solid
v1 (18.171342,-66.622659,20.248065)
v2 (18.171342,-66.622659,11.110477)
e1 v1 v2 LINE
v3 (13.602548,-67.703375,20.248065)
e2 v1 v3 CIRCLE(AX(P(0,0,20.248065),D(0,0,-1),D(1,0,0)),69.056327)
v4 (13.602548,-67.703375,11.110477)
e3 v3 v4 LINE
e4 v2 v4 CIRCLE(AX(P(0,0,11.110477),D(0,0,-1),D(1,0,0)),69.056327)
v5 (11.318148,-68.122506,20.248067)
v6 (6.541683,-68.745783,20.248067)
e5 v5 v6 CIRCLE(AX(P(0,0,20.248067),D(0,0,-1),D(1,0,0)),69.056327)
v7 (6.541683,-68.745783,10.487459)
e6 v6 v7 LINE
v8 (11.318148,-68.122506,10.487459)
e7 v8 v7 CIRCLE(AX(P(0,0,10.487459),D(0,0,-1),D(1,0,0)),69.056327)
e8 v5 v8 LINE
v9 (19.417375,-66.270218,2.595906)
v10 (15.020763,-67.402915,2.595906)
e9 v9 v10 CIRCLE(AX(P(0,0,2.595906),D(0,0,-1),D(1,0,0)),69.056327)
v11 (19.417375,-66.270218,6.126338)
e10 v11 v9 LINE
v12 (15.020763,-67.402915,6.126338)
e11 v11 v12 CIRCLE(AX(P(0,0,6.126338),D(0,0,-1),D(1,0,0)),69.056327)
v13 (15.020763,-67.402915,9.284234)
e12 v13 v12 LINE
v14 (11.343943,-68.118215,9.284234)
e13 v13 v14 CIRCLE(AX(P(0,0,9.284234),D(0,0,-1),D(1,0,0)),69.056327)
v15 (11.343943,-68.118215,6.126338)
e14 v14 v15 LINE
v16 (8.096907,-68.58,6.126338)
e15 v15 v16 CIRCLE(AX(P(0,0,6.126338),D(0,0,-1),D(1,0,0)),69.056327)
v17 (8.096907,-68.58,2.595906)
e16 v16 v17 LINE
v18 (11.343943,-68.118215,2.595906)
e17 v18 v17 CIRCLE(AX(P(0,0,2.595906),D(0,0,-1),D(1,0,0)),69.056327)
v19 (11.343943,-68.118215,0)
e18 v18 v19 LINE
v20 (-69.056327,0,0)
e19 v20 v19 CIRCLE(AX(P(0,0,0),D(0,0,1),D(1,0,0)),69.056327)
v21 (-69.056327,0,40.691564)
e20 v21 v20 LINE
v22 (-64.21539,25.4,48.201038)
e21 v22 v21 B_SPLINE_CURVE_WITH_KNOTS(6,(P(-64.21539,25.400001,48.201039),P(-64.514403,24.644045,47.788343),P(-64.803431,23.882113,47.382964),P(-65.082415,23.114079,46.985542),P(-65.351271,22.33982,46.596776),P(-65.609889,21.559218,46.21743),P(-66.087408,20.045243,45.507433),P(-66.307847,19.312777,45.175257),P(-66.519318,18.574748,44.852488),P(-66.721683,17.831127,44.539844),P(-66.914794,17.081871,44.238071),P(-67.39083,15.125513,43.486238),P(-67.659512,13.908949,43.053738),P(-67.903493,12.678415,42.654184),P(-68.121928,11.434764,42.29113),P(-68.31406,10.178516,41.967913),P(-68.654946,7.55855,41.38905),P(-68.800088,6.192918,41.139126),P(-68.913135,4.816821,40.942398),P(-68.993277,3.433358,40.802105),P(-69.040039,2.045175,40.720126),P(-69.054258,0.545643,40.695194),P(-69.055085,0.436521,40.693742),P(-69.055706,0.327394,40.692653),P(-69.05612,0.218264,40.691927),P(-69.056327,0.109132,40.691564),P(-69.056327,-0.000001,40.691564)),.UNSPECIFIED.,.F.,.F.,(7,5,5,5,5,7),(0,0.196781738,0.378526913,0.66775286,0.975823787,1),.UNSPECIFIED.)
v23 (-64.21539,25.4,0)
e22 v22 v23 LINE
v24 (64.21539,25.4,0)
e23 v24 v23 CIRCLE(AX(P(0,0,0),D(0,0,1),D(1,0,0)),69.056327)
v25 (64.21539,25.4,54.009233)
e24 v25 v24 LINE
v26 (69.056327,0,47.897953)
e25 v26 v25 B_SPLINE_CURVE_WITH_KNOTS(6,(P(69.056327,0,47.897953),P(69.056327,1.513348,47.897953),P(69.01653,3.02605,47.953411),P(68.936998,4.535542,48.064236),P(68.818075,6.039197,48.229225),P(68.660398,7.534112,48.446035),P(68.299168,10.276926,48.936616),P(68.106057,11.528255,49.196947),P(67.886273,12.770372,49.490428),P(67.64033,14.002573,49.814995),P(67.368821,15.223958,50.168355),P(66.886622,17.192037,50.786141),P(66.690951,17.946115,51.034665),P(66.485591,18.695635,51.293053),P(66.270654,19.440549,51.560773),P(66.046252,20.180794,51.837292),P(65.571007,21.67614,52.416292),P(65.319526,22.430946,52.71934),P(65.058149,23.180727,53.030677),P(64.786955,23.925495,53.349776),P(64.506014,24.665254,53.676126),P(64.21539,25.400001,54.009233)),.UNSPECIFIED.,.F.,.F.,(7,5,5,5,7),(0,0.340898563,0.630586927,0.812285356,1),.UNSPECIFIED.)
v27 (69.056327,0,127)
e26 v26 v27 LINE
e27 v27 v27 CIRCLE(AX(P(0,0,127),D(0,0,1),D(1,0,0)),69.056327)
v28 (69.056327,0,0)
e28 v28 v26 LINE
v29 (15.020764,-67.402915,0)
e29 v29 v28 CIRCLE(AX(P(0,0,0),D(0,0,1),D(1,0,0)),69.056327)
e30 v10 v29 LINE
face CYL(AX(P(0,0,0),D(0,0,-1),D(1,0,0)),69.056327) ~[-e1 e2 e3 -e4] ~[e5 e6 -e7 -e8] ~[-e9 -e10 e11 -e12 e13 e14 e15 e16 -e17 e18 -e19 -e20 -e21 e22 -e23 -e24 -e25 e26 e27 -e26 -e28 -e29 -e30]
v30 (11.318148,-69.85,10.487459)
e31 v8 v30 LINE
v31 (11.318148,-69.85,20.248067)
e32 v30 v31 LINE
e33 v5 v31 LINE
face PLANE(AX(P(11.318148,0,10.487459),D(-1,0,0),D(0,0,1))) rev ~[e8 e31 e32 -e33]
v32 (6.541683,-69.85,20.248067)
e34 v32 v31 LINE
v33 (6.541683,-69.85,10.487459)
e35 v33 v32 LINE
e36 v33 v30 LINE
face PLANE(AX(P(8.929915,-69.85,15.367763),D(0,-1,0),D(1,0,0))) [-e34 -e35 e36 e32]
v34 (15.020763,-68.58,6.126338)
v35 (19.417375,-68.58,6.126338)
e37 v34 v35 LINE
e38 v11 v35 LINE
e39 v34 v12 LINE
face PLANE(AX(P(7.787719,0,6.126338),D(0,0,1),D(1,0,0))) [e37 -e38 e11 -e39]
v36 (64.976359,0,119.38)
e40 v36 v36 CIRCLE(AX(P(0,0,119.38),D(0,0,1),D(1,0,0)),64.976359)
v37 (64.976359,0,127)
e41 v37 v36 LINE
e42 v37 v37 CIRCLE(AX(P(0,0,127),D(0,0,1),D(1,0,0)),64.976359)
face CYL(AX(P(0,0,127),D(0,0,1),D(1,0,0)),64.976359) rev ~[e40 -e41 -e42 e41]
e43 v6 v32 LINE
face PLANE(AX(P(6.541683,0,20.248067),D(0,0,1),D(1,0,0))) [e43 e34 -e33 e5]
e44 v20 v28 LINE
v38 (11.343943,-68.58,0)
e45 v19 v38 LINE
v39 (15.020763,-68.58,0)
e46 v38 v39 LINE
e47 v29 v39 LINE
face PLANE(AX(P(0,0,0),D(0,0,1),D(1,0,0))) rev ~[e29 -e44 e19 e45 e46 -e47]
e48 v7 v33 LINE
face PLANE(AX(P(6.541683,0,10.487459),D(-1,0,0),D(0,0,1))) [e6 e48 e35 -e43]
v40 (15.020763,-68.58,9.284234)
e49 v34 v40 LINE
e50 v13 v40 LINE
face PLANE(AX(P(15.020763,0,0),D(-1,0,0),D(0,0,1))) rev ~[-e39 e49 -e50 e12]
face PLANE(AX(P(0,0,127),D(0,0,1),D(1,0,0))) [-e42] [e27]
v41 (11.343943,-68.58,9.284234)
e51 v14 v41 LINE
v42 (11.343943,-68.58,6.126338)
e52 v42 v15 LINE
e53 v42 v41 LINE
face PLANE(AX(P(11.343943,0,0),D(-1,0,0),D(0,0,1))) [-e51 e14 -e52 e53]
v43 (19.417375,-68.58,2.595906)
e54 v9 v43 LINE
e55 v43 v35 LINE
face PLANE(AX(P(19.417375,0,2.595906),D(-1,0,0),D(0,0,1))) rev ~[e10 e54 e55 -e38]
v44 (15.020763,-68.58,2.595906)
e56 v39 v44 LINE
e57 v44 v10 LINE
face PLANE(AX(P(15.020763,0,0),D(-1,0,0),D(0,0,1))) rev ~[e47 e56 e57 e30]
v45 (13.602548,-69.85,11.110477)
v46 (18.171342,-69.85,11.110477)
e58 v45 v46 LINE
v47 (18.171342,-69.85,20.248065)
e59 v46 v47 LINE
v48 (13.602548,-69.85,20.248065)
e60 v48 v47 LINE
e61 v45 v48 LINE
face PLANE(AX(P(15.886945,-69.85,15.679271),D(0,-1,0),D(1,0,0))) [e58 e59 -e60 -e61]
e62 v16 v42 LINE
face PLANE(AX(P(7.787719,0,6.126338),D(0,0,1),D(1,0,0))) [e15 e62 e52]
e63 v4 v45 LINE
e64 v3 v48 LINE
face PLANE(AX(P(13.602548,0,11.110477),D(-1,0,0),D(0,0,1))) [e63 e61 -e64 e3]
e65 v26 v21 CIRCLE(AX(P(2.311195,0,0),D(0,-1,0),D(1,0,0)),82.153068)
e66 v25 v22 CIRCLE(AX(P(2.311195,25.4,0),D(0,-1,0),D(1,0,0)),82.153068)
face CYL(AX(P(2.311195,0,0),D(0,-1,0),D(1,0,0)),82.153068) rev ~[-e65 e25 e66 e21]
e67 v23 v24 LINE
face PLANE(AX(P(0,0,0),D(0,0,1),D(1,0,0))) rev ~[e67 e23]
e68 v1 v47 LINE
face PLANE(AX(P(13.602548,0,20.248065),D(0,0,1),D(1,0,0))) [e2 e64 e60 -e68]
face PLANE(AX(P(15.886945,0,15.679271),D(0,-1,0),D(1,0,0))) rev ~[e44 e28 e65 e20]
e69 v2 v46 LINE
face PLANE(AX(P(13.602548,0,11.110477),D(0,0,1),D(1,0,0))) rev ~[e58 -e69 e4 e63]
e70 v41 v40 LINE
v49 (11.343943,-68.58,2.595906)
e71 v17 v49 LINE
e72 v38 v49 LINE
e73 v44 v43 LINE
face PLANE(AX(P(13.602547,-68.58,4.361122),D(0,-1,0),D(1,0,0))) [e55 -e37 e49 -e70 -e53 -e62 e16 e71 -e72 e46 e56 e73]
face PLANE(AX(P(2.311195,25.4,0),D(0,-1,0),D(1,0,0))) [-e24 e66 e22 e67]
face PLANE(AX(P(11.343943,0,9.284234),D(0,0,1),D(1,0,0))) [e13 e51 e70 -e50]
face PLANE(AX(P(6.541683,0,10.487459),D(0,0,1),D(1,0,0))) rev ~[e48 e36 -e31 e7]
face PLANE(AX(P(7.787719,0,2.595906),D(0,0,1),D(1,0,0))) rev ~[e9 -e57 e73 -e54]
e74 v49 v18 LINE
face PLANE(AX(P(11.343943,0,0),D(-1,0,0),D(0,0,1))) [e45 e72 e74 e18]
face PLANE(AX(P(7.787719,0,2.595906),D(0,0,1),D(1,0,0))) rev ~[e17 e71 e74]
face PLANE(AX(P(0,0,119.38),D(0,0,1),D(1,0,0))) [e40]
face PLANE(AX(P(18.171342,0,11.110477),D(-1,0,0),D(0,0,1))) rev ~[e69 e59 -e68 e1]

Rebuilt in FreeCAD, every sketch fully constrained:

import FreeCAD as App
import Part
import Sketcher
from FreeCAD import Vector


def add_polygon(sketch, points):
    """Adds a closed chain of lines whose ends are joined by coincident constraints."""
    first, n = sketch.GeometryCount, len(points)
    for a, b in zip(points, points[1:] + points[:1]):
        sketch.addGeometry(Part.LineSegment(App.Vector(*a, 0), App.Vector(*b, 0)), False)
    for i in range(n):
        sketch.addConstraint(Sketcher.Constraint("Coincident", first + i, 2, first + (i + 1) % n, 1))

doc = App.newDocument("Part")
params = doc.addObject("Spreadsheet::Sheet", "Params")
for row, (alias, value) in enumerate([
    ("pad1_length", "5 in"),
    ("pocket1_length", "1 in"),
    ("pocket2_length", "0.3 in"),
    ("pad2_length", "2.7 in"),
    ("pad3_length", "2.7 in"),
    ("pad4_length", "2.75 in"),
    ("pad5_length", "2.75 in"),
], start=1):
    params.set(f"A{row}", alias)
    params.set(f"B{row}", "=" + value)
    params.setAlias(f"B{row}", alias)

body = doc.addObject("PartDesign::Body", "Body")

sketch1 = body.newObject("Sketcher::SketchObject", "Sketch")
sketch1.AttachmentSupport = (doc.getObject("XY_Plane"), [""])
sketch1.MapMode = "FlatFace"
sketch1.addGeometry(Part.Circle(Vector(0, 0, 0), Vector(0, 0, 1), 69), False)
sketch1.addConstraint(Sketcher.Constraint("Coincident", 0, 3, -1, 1))
sketch1.addConstraint(Sketcher.Constraint("Diameter", 0, 138.112654))
pad1 = body.newObject("PartDesign::Pad", "Pad")
pad1.Profile = sketch1
pad1.setExpression("Length", "Params.pad1_length")

sketch2 = body.newObject("Sketcher::SketchObject", "Sketch001")
sketch2.AttachmentSupport = (doc.getObject("XZ_Plane"), [""])
sketch2.MapMode = "FlatFace"
sketch2.addGeometry(Part.Circle(Vector(2, 0, 0), Vector(0, 0, 1), 82), False)
sketch2.addConstraint(Sketcher.Constraint("PointOnObject", 0, 3, -1))
sketch2.addConstraint(Sketcher.Constraint("Diameter", 0, 164.306136))
sketch2.addConstraint(Sketcher.Constraint("DistanceX", -1, 1, 0, 3, 2.311195))
pocket1 = body.newObject("PartDesign::Pocket", "Pocket")
pocket1.Profile = sketch2
pocket1.setExpression("Length", "Params.pocket1_length")

sketch3 = body.newObject("Sketcher::SketchObject", "Sketch002")
sketch3.AttachmentSupport = (doc.getObject("XY_Plane"), [""])
sketch3.MapMode = "FlatFace"
sketch3.AttachmentOffset = App.Placement(Vector(0, 0, 5 * 25.4), App.Rotation())
sketch3.addGeometry(Part.Circle(Vector(0, 0, 0), Vector(0, 0, 1), 65), False)
sketch3.addConstraint(Sketcher.Constraint("Coincident", 0, 3, -1, 1))
sketch3.addConstraint(Sketcher.Constraint("Diameter", 0, 129.952718))
pocket2 = body.newObject("PartDesign::Pocket", "Pocket001")
pocket2.Profile = sketch3
pocket2.setExpression("Length", "Params.pocket2_length")

sketch4 = body.newObject("Sketcher::SketchObject", "Sketch003")
sketch4.AttachmentSupport = (doc.getObject("XZ_Plane"), [""])
sketch4.MapMode = "FlatFace"
add_polygon(sketch4, [(11.3, 9.3), (11.3, 0), (15, 0), (15, 9.3)])
sketch4.addConstraint(Sketcher.Constraint("Vertical", 0))
sketch4.addConstraint(Sketcher.Constraint("Horizontal", 1))
sketch4.addConstraint(Sketcher.Constraint("Vertical", 2))
sketch4.addConstraint(Sketcher.Constraint("Horizontal", 3))
sketch4.addConstraint(Sketcher.Constraint("PointOnObject", 0, 2, -1))
sketch4.addConstraint(Sketcher.Constraint("DistanceX", 1, 1, 1, 2, 3.676821))
sketch4.addConstraint(Sketcher.Constraint("DistanceY", 0, 2, 0, 1, 9.284234))
sketch4.addConstraint(Sketcher.Constraint("DistanceX", -1, 1, 0, 2, 11.343943))
pad2 = body.newObject("PartDesign::Pad", "Pad001")
pad2.Profile = sketch4
pad2.setExpression("Length", "Params.pad2_length")

sketch5 = body.newObject("Sketcher::SketchObject", "Sketch004")
sketch5.AttachmentSupport = (doc.getObject("XZ_Plane"), [""])
sketch5.MapMode = "FlatFace"
add_polygon(sketch5, [(7.8, 6.1), (7.8, 2.6), (19.4, 2.6), (19.4, 6.1)])
sketch5.addConstraint(Sketcher.Constraint("Vertical", 0))
sketch5.addConstraint(Sketcher.Constraint("Horizontal", 1))
sketch5.addConstraint(Sketcher.Constraint("Vertical", 2))
sketch5.addConstraint(Sketcher.Constraint("Horizontal", 3))
sketch5.addConstraint(Sketcher.Constraint("DistanceY", 0, 2, 0, 1, 3.530432))
sketch5.addConstraint(Sketcher.Constraint("DistanceX", 1, 1, 1, 2, 11.629656))
sketch5.addConstraint(Sketcher.Constraint("DistanceX", -1, 1, 0, 2, 7.787719))
sketch5.addConstraint(Sketcher.Constraint("DistanceY", -1, 1, 0, 2, 2.595906))
pad3 = body.newObject("PartDesign::Pad", "Pad002")
pad3.Profile = sketch5
pad3.setExpression("Length", "Params.pad3_length")

sketch6 = body.newObject("Sketcher::SketchObject", "Sketch005")
sketch6.AttachmentSupport = (doc.getObject("XZ_Plane"), [""])
sketch6.MapMode = "FlatFace"
add_polygon(sketch6, [(6.5, 20.2), (6.5, 10.5), (11.3, 10.5), (11.3, 20.2)])
sketch6.addConstraint(Sketcher.Constraint("Vertical", 0))
sketch6.addConstraint(Sketcher.Constraint("Horizontal", 1))
sketch6.addConstraint(Sketcher.Constraint("Vertical", 2))
sketch6.addConstraint(Sketcher.Constraint("Horizontal", 3))
sketch6.addConstraint(Sketcher.Constraint("DistanceX", 1, 1, 1, 2, 4.776465))
sketch6.addConstraint(Sketcher.Constraint("DistanceY", 0, 2, 0, 1, 9.760607))
sketch6.addConstraint(Sketcher.Constraint("DistanceY", -1, 1, 0, 2, 10.487459))
sketch6.addConstraint(Sketcher.Constraint("DistanceX", -1, 1, 0, 2, 6.541683))
pad4 = body.newObject("PartDesign::Pad", "Pad003")
pad4.Profile = sketch6
pad4.setExpression("Length", "Params.pad4_length")

sketch7 = body.newObject("Sketcher::SketchObject", "Sketch006")
sketch7.AttachmentSupport = (doc.getObject("XZ_Plane"), [""])
sketch7.MapMode = "FlatFace"
add_polygon(sketch7, [(13.6, 20.2), (13.6, 11.1), (18.2, 11.1), (18.2, 20.2)])
sketch7.addConstraint(Sketcher.Constraint("Vertical", 0))
sketch7.addConstraint(Sketcher.Constraint("Horizontal", 1))
sketch7.addConstraint(Sketcher.Constraint("Vertical", 2))
sketch7.addConstraint(Sketcher.Constraint("Horizontal", 3))
sketch7.addConstraint(Sketcher.Constraint("DistanceY", 0, 2, 0, 1, 9.137589))
sketch7.addConstraint(Sketcher.Constraint("DistanceX", 1, 1, 1, 2, 4.568793))
sketch7.addConstraint(Sketcher.Constraint("DistanceX", -1, 1, 0, 2, 13.602548))
sketch7.addConstraint(Sketcher.Constraint("DistanceY", -1, 1, 0, 2, 11.110477))
pad5 = body.newObject("PartDesign::Pad", "Pad004")
pad5.Profile = sketch7
pad5.setExpression("Length", "Params.pad5_length")

doc.recompute()
